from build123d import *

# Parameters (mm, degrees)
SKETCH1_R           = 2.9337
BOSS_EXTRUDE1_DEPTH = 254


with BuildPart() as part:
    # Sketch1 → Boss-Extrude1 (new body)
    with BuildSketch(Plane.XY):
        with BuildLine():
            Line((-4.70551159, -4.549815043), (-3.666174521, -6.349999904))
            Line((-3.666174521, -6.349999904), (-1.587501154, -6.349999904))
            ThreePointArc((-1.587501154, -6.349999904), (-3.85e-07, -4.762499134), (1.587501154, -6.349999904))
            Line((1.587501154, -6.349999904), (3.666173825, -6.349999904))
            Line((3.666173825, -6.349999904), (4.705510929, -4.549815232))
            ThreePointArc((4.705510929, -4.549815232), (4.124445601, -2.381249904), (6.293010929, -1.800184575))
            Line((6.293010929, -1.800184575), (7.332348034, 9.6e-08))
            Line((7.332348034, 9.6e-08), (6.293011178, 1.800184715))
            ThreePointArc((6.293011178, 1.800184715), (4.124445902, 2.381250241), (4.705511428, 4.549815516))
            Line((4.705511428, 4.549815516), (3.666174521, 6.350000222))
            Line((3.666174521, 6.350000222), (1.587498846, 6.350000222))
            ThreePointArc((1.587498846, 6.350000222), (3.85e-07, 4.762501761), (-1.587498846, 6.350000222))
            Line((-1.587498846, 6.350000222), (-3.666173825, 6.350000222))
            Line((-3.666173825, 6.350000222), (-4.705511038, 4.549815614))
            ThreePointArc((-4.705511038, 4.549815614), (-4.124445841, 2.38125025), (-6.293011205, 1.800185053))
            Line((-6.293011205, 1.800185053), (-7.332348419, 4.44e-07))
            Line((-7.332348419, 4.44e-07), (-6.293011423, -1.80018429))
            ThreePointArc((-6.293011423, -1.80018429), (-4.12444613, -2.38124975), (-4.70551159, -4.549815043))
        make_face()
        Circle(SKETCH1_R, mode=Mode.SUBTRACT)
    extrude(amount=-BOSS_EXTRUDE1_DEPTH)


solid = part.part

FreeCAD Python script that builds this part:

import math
import FreeCAD as App
import Part
import Sketcher
Q = App.Units.Quantity

doc = App.newDocument("Part")
body = doc.addObject("PartDesign::Body", "Body")

# Sketch on XY plane
sketch1 = doc.addObject("Sketcher::SketchObject", "Sketch")
body.addObject(sketch1)
sketch1.AttachmentSupport = (doc.XY_Plane, [""])
sketch1.MapMode = "FlatFace"
sketch1.addGeometry([
    Part.LineSegment(App.Vector(-4.705512, -4.549815, 0), App.Vector(-3.666175, -6.35, 0)),  # 0
    Part.LineSegment(App.Vector(-3.666175, -6.35, 0), App.Vector(-1.587501, -6.35, 0)),  # 1
    Part.ArcOfCircle(Part.Circle(App.Vector(0, -6.35, 0), App.Vector(0, 0, 1), 1.587501), math.radians(0.000014), math.radians(179.999986)),  # 2
    Part.LineSegment(App.Vector(1.587501, -6.35, 0), App.Vector(3.666174, -6.35, 0)),  # 3
    Part.LineSegment(App.Vector(3.666174, -6.35, 0), App.Vector(4.705511, -4.549815, 0)),  # 4
    Part.ArcOfCircle(Part.Circle(App.Vector(5.499261, -3.175, 0), App.Vector(0, 0, 1), 1.5875), math.radians(60), math.radians(240)),  # 5
    Part.LineSegment(App.Vector(6.293011, -1.800185, 0), App.Vector(7.332348, 0, 0)),  # 6
    Part.LineSegment(App.Vector(7.332348, 0, 0), App.Vector(6.293011, 1.800185, 0)),  # 7
    Part.ArcOfCircle(Part.Circle(App.Vector(5.499261, 3.175, 0), App.Vector(0, 0, 1), 1.5875), math.radians(119.999995), math.radians(299.999995)),  # 8
    Part.LineSegment(App.Vector(4.705511, 4.549816, 0), App.Vector(3.666175, 6.35, 0)),  # 9
    Part.LineSegment(App.Vector(3.666175, 6.35, 0), App.Vector(1.587499, 6.35, 0)),  # 10
    Part.ArcOfCircle(Part.Circle(App.Vector(0, 6.350001, 0), App.Vector(0, 0, 1), 1.587499), math.radians(-179.999986), math.radians(-0.000014)),  # 11
    Part.LineSegment(App.Vector(-1.587499, 6.35, 0), App.Vector(-3.666174, 6.35, 0)),  # 12
    Part.LineSegment(App.Vector(-3.666174, 6.35, 0), App.Vector(-4.705511, 4.549816, 0)),  # 13
    Part.ArcOfCircle(Part.Circle(App.Vector(-5.499261, 3.175, 0), App.Vector(0, 0, 1), 1.5875), math.radians(-120.000003), math.radians(59.999997)),  # 14
    Part.LineSegment(App.Vector(-6.293011, 1.800185, 0), App.Vector(-7.332348, 0, 0)),  # 15
    Part.LineSegment(App.Vector(-7.332348, 0, 0), App.Vector(-6.293011, -1.800184, 0)),  # 16
    Part.ArcOfCircle(Part.Circle(App.Vector(-5.499262, -3.175, 0), App.Vector(0, 0, 1), 1.5875), math.radians(-60.000004), math.radians(119.999997)),  # 17
    Part.Circle(App.Vector(0, 0, 0), App.Vector(0, 0, 1), 2.9337),  # 18
], False)
sketch1.addConstraint([
    Sketcher.Constraint("Coincident", 0, 2, 1, 1),
    Sketcher.Constraint("Coincident", 1, 2, 2, 2),
    Sketcher.Constraint("Coincident", 2, 1, 3, 1),
    Sketcher.Constraint("Coincident", 3, 2, 4, 1),
    Sketcher.Constraint("Coincident", 4, 2, 5, 2),
    Sketcher.Constraint("Coincident", 5, 1, 6, 1),
    Sketcher.Constraint("Coincident", 6, 2, 7, 1),
    Sketcher.Constraint("Coincident", 7, 2, 8, 2),
    Sketcher.Constraint("Coincident", 8, 1, 9, 1),
    Sketcher.Constraint("Coincident", 9, 2, 10, 1),
    Sketcher.Constraint("Coincident", 10, 2, 11, 2),
    Sketcher.Constraint("Coincident", 11, 1, 12, 1),
    Sketcher.Constraint("Coincident", 12, 2, 13, 1),
    Sketcher.Constraint("Coincident", 13, 2, 14, 2),
    Sketcher.Constraint("Coincident", 14, 1, 15, 1),
    Sketcher.Constraint("Coincident", 15, 2, 16, 1),
    Sketcher.Constraint("Coincident", 16, 2, 17, 2),
    Sketcher.Constraint("Coincident", 17, 1, 0, 1),
    Sketcher.Constraint("Horizontal", 1),
    Sketcher.Constraint("Horizontal", 3),
    Sketcher.Constraint("Horizontal", 10),
    Sketcher.Constraint("Horizontal", 12),
    Sketcher.Constraint("Coincident", 18, 3, -1, 1),
    Sketcher.Constraint("Equal", 2, 5),
    Sketcher.Constraint("Equal", 5, 8),
    Sketcher.Constraint("Equal", 8, 11),
    Sketcher.Constraint("Equal", 11, 14),
    Sketcher.Constraint("Equal", 14, 17),
    Sketcher.Constraint("Symmetric", 2, 3, 11, 3, -1, 1),
    Sketcher.Constraint("Symmetric", 5, 3, 14, 3, -1, 1),
    Sketcher.Constraint("Symmetric", 8, 3, 17, 3, -1, 1),
    Sketcher.Constraint("Symmetric", 0, 2, 9, 2, -1, 1),
    Sketcher.Constraint("Symmetric", 3, 2, 12, 2, -1, 1),
    Sketcher.Constraint("Symmetric", 6, 2, 15, 2, -1, 1),
    Sketcher.Constraint("Symmetric", 8, 3, 14, 3, -2),
    Sketcher.Constraint("Symmetric", 1, 2, 2, 1, -2),
    Sketcher.Constraint("PointOnObject", 6, 2, -1),
    Sketcher.Constraint("Parallel", 4, 6),
    Sketcher.Constraint("Parallel", 0, 7),
    Sketcher.Constraint("Parallel", 7, 9),
    Sketcher.Constraint("Parallel", 6, 13),
    Sketcher.Constraint("Parallel", 13, 15),
    Sketcher.Constraint("Parallel", 9, 16),
    Sketcher.Constraint("Horizontal", 2, 3, 0, 2),
    Sketcher.Constraint("Horizontal", 8, 1, 13, 2),
    Sketcher.Constraint("Horizontal", 7, 2, 14, 1),
    Sketcher.Constraint("Equal", 4, 6),
    Sketcher.Constraint("Diameter", 18, Q("0.231 in")),
    Sketcher.Constraint("Angle", 0, Q("-60.000003 deg")),
    Sketcher.Constraint("Radius", 2, Q("0.0625 in")),
    Sketcher.Constraint("DistanceY", 2, 3, 11, 3, Q("0.5 in")),
    Sketcher.Constraint("DistanceY", 5, 3, 8, 3, Q("0.25 in")),
    Sketcher.Constraint("DistanceX", 4, 2, 5, 3, Q("0.03125 in")),
    Sketcher.Constraint("DistanceX", 1, 1, 1, 2, 2.078673),
])
pad1 = doc.addObject("PartDesign::Pad", "Pad")
body.addObject(pad1)
pad1.Profile = sketch1
pad1.Length = Q("10 in")
pad1.Reversed = True

doc.recompute()
